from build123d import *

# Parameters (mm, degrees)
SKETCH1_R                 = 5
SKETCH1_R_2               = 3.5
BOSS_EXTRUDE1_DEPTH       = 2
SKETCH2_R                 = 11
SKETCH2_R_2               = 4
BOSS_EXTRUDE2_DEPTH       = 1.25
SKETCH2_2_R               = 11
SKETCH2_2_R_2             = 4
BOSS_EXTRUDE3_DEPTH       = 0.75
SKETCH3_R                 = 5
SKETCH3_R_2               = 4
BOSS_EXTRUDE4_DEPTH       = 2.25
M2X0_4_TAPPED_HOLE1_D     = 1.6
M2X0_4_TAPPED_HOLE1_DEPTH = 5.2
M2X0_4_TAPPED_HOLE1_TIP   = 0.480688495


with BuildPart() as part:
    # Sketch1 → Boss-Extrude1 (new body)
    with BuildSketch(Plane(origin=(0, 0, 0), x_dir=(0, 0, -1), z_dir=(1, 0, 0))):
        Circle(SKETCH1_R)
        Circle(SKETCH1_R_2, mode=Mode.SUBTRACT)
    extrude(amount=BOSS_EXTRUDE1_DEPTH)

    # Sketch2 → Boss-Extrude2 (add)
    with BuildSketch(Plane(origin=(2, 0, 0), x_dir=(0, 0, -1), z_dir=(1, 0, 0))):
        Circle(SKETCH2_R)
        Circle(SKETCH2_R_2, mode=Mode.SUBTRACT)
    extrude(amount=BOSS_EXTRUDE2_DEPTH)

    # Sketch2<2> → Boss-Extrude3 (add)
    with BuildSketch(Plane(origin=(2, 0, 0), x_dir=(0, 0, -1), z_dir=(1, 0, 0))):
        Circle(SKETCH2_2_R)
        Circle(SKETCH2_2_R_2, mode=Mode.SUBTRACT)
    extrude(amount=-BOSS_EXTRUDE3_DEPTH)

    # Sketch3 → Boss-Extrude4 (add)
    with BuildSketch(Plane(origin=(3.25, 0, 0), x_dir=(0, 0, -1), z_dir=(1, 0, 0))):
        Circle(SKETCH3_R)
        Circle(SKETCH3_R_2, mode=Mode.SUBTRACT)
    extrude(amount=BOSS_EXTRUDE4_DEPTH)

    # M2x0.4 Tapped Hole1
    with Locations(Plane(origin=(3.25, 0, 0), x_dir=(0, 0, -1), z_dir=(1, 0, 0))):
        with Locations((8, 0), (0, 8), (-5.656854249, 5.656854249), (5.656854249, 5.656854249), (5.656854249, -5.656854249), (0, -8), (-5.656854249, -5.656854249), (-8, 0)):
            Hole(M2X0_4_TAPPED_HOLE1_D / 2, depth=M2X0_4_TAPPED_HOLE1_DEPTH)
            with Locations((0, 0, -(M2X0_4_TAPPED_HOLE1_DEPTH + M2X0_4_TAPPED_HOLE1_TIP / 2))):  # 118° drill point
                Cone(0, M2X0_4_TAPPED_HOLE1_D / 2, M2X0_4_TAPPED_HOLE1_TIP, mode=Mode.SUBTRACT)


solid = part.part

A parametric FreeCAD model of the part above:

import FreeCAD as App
import Part
import Sketcher

V = App.Vector
Q = App.Units.Quantity

doc = App.newDocument("Part")
body = doc.addObject("PartDesign::Body", "Body")

sketch1 = body.newObject("Sketcher::SketchObject", "Sketch")
sketch1.AttachmentSupport = (doc.getObject("YZ_Plane"), [""])
sketch1.MapMode = "FlatFace"
sketch1.addGeometry(Part.Circle(V(0, 0, 0), V(0, 0, 1), 5), False)
sketch1.addGeometry(Part.Circle(V(0, 0, 0), V(0, 0, 1), 3.5), False)
sketch1.addConstraint(Sketcher.Constraint("Coincident", 0, 3, -1, 1))
sketch1.addConstraint(Sketcher.Constraint("Coincident", 1, 3, -1, 1))
sketch1.addConstraint(Sketcher.Constraint("Diameter", 0, Q("10 mm")))
sketch1.addConstraint(Sketcher.Constraint("Diameter", 1, Q("7 mm")))
pad1 = body.newObject("PartDesign::Pad", "Pad")
pad1.Profile = sketch1
pad1.Length = 2

sketch2 = body.newObject("Sketcher::SketchObject", "Sketch001")
sketch2.AttachmentSupport = (doc.getObject("YZ_Plane"), [""])
sketch2.MapMode = "FlatFace"
sketch2.AttachmentOffset = App.Placement(V(0, 0, 2), App.Rotation())
sketch2.addGeometry(Part.Circle(V(0, 0, 0), V(0, 0, 1), 11), False)
sketch2.addGeometry(Part.Circle(V(0, 0, 0), V(0, 0, 1), 4), False)
sketch2.addConstraint(Sketcher.Constraint("Coincident", 0, 3, -1, 1))
sketch2.addConstraint(Sketcher.Constraint("Coincident", 1, 3, -1, 1))
sketch2.addConstraint(Sketcher.Constraint("Diameter", 0, Q("22 mm")))
sketch2.addConstraint(Sketcher.Constraint("Diameter", 1, Q("8 mm")))
pad2 = body.newObject("PartDesign::Pad", "Pad001")
pad2.Profile = sketch2
pad2.Length = 1.25

sketch3 = body.newObject("Sketcher::SketchObject", "Sketch002")
sketch3.AttachmentSupport = (doc.getObject("YZ_Plane"), [""])
sketch3.MapMode = "FlatFace"
sketch3.AttachmentOffset = App.Placement(V(0, 0, 2), App.Rotation())
sketch3.addGeometry(Part.Circle(V(0, 0, 0), V(0, 0, 1), 11), False)
sketch3.addGeometry(Part.Circle(V(0, 0, 0), V(0, 0, 1), 4), False)
sketch3.addConstraint(Sketcher.Constraint("Coincident", 0, 3, -1, 1))
sketch3.addConstraint(Sketcher.Constraint("Coincident", 1, 3, -1, 1))
sketch3.addConstraint(Sketcher.Constraint("Diameter", 0, Q("22 mm")))
sketch3.addConstraint(Sketcher.Constraint("Diameter", 1, Q("8 mm")))
pad3 = body.newObject("PartDesign::Pad", "Pad002")
pad3.Profile = sketch3
pad3.Length = 0.75
pad3.Reversed = True

sketch4 = body.newObject("Sketcher::SketchObject", "Sketch003")
sketch4.AttachmentSupport = (doc.getObject("YZ_Plane"), [""])
sketch4.MapMode = "FlatFace"
sketch4.AttachmentOffset = App.Placement(V(0, 0, 3.25), App.Rotation())
sketch4.addGeometry(Part.Circle(V(0, 0, 0), V(0, 0, 1), 5), False)
sketch4.addGeometry(Part.Circle(V(0, 0, 0), V(0, 0, 1), 4), False)
sketch4.addConstraint(Sketcher.Constraint("Coincident", 0, 3, -1, 1))
sketch4.addConstraint(Sketcher.Constraint("Coincident", 1, 3, -1, 1))
sketch4.addConstraint(Sketcher.Constraint("Diameter", 0, Q("10 mm")))
sketch4.addConstraint(Sketcher.Constraint("Diameter", 1, Q("8 mm")))
pad4 = body.newObject("PartDesign::Pad", "Pad003")
pad4.Profile = sketch4
pad4.Length = 2.25

sketch5 = body.newObject("Sketcher::SketchObject", "Sketch004")
sketch5.AttachmentSupport = (doc.getObject("YZ_Plane"), [""])
sketch5.MapMode = "FlatFace"
sketch5.AttachmentOffset = App.Placement(V(0, 0, 3.25), App.Rotation())
sketch5.addGeometry(Part.Circle(V(0, -8, 0), V(0, 0, 1), 0.8), False)
sketch5.addGeometry(Part.Circle(V(8, 0, 0), V(0, 0, 1), 0.8), False)
sketch5.addGeometry(Part.Circle(V(5.7, 5.7, 0), V(0, 0, 1), 0.8), False)
sketch5.addGeometry(Part.Circle(V(5.7, -5.7, 0), V(0, 0, 1), 0.8), False)
sketch5.addGeometry(Part.Circle(V(-5.7, -5.7, 0), V(0, 0, 1), 0.8), False)
sketch5.addGeometry(Part.Circle(V(-8, 0, 0), V(0, 0, 1), 0.8), False)
sketch5.addGeometry(Part.Circle(V(-5.7, 5.7, 0), V(0, 0, 1), 0.8), False)
sketch5.addGeometry(Part.Circle(V(0, 8, 0), V(0, 0, 1), 0.8), False)
sketch5.addConstraint(Sketcher.Constraint("Equal", 0, 1))
sketch5.addConstraint(Sketcher.Constraint("Equal", 1, 2))
sketch5.addConstraint(Sketcher.Constraint("Equal", 2, 3))
sketch5.addConstraint(Sketcher.Constraint("Equal", 3, 4))
sketch5.addConstraint(Sketcher.Constraint("Equal", 4, 5))
sketch5.addConstraint(Sketcher.Constraint("Equal", 5, 6))
sketch5.addConstraint(Sketcher.Constraint("Equal", 6, 7))
sketch5.addConstraint(Sketcher.Constraint("Symmetric", 2, 3, 4, 3, -1, 1))
sketch5.addConstraint(Sketcher.Constraint("Symmetric", 1, 3, 5, 3, -1, 1))
sketch5.addConstraint(Sketcher.Constraint("Symmetric", 3, 3, 6, 3, -1, 1))
sketch5.addConstraint(Sketcher.Constraint("Symmetric", 0, 3, 7, 3, -1, 1))
sketch5.addConstraint(Sketcher.Constraint("Symmetric", 3, 3, 4, 3, -2))
sketch5.addConstraint(Sketcher.Constraint("PointOnObject", 0, 3, -2))
sketch5.addConstraint(Sketcher.Constraint("PointOnObject", 1, 3, -1))
sketch5.addConstraint(Sketcher.Constraint("Diameter", 0, Q("1.6 mm")))
sketch5.addConstraint(Sketcher.Constraint("DistanceY", 0, 3, -1, 1, Q("8 mm")))
sketch5.addConstraint(Sketcher.Constraint("DistanceX", -1, 1, 1, 3, Q("8 mm")))
sketch5.addConstraint(Sketcher.Constraint("DistanceY", 3, 3, 2, 3, Q("11.313708 mm")))
sketch5.addConstraint(Sketcher.Constraint("DistanceX", 4, 3, 3, 3, Q("11.313708 mm")))
doc.recompute()
hole = body.newObject("PartDesign::Hole", "Hole")
hole.Profile = sketch5
hole.ThreadType = "None"
hole.Diameter = 1.6
hole.DepthType = "Dimension"
hole.Depth = 5.2
hole.DrillPoint = "Angled"
hole.DrillPointAngle = 118

doc.recompute()
